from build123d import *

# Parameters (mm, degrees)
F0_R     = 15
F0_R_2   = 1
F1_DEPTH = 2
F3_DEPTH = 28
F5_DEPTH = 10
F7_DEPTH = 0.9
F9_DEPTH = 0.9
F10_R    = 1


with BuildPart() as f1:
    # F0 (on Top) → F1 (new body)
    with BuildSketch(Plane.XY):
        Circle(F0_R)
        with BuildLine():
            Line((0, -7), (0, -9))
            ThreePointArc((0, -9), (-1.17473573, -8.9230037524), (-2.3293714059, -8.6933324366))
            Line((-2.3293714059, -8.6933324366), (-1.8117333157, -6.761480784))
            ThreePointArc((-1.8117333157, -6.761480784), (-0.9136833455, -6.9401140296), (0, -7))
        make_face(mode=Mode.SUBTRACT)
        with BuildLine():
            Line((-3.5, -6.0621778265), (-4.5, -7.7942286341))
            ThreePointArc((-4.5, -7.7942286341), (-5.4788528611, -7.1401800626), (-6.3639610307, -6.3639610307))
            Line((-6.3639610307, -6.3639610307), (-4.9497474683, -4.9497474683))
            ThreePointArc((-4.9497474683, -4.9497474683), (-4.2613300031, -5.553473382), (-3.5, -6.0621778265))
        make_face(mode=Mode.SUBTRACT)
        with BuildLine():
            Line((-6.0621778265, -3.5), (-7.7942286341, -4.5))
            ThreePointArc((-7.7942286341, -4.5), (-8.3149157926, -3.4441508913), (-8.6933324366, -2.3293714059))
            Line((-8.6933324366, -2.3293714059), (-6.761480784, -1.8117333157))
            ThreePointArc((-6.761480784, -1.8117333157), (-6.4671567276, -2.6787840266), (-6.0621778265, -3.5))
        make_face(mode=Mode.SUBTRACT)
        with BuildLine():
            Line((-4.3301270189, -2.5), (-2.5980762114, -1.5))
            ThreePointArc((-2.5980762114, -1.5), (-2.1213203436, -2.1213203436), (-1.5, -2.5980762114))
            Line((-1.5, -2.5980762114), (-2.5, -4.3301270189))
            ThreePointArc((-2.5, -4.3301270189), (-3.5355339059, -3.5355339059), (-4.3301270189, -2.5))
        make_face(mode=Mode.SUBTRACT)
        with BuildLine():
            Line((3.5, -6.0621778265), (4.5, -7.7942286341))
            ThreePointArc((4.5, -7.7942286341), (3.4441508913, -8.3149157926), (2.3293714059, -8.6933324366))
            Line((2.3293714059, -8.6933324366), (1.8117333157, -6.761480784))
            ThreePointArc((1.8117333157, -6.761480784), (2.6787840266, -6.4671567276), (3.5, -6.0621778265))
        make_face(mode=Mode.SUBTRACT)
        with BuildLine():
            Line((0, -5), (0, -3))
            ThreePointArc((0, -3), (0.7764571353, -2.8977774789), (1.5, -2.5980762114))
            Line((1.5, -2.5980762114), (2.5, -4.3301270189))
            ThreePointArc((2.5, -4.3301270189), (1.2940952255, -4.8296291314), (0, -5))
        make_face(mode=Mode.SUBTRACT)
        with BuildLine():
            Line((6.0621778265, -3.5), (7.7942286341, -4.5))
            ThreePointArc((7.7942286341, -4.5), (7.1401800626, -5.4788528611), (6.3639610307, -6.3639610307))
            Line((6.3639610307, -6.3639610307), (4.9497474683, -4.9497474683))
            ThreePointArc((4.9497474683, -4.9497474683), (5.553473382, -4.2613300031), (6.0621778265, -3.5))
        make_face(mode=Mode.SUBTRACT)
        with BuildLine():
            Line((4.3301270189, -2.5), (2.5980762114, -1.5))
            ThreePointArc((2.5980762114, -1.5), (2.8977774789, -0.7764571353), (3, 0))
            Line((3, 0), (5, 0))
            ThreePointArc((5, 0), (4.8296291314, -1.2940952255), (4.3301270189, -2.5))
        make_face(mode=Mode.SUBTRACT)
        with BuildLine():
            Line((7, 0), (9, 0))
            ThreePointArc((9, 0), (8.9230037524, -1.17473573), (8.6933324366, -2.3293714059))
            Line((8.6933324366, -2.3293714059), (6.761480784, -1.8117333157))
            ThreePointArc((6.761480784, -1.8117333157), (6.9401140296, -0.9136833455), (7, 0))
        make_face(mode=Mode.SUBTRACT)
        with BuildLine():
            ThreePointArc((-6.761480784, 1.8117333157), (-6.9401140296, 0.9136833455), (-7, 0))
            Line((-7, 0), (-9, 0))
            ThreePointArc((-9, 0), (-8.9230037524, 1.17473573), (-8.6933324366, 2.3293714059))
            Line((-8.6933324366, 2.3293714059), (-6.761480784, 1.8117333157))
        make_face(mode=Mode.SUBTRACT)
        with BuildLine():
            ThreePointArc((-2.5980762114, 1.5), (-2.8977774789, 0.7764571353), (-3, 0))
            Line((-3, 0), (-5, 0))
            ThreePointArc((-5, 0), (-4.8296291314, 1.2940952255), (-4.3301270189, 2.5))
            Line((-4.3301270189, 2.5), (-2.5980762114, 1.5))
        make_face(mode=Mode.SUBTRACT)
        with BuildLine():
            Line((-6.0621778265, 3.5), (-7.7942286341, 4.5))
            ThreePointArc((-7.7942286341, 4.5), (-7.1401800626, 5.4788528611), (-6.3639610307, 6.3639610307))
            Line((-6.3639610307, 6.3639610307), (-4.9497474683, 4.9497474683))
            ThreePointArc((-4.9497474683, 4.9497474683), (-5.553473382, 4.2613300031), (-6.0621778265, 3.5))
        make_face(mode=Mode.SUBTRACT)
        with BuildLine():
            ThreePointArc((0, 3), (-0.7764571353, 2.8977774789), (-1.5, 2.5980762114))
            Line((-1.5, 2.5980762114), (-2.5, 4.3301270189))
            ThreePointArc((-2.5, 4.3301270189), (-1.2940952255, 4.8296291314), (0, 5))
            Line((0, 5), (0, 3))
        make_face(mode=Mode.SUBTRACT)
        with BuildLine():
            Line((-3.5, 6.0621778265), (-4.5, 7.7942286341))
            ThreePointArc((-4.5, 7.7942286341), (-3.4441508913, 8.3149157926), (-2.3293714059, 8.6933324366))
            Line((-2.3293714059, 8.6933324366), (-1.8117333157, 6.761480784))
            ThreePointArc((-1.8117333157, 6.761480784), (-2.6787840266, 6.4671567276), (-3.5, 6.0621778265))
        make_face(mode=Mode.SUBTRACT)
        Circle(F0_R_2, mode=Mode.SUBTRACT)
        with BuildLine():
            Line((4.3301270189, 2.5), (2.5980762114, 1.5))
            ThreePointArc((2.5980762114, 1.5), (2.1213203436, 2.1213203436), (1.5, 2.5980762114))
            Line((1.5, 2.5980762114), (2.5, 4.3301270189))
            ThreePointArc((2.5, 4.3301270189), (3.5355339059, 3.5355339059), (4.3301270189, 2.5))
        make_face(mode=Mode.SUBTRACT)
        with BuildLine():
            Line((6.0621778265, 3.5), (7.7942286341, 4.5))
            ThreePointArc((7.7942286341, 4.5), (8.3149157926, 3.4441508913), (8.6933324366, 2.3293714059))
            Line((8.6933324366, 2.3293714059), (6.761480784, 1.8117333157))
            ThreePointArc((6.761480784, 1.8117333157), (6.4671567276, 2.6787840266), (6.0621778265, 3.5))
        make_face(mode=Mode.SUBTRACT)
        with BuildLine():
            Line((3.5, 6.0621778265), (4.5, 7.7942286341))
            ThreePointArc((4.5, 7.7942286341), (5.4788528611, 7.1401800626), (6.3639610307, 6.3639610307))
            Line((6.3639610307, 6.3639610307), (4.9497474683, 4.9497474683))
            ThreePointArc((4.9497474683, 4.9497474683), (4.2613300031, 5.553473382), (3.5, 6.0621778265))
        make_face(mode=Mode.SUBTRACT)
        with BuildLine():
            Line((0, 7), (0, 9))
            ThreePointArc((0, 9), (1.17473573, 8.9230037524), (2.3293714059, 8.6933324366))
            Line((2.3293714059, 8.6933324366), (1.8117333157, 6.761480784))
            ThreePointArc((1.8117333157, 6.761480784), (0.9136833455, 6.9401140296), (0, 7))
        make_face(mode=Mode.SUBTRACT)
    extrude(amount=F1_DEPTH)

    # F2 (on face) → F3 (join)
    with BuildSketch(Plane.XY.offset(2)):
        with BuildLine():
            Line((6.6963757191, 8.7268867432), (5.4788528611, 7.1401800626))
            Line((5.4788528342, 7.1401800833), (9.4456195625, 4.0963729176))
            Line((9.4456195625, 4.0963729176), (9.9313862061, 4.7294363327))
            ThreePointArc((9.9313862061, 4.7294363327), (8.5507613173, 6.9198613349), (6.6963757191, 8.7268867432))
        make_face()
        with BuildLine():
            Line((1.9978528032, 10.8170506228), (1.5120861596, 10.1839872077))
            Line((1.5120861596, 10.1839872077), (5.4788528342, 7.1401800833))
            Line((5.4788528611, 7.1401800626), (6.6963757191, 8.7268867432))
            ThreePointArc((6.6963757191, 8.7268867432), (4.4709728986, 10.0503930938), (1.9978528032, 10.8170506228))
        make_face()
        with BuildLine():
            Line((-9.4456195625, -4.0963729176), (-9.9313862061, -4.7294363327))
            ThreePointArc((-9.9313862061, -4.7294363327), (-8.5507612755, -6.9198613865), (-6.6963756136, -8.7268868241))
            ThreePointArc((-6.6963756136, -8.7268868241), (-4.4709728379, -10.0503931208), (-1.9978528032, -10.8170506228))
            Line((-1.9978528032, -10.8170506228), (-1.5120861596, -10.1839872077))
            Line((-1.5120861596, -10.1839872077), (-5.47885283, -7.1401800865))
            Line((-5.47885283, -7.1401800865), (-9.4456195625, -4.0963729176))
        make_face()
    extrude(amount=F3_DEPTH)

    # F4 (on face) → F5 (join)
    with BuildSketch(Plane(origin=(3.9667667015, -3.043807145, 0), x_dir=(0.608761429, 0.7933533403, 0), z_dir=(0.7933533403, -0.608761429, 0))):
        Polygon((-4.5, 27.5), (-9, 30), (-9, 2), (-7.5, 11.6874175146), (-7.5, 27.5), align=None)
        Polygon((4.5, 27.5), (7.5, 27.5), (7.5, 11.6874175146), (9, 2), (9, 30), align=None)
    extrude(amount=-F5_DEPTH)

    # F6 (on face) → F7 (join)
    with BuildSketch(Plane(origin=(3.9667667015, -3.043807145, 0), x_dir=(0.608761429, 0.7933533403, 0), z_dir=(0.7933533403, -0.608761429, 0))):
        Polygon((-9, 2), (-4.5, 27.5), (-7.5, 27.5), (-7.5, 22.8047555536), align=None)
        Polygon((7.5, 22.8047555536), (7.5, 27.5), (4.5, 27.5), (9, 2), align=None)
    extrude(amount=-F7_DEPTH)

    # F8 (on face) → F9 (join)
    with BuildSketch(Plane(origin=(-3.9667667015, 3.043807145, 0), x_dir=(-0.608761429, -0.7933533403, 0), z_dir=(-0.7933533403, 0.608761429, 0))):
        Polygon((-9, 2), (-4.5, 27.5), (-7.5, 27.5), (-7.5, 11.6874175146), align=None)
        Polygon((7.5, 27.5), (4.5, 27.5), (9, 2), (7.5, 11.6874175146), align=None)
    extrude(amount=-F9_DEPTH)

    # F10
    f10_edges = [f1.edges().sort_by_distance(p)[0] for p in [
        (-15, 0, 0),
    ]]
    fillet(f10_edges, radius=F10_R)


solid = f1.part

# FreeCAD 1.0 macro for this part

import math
import FreeCAD as App
import Part
import Sketcher
from FreeCAD import Vector
Q = App.Units.Quantity


def edges_at(feature, points):
    """Names of the edges that pass closest to the given points."""
    edges = feature.Shape.Edges
    near = lambda p: min(range(len(edges)), key=lambda i: edges[i].distToShape(Part.Vertex(*p))[0])
    return sorted({f"Edge{near(p) + 1}" for p in points})

doc = App.newDocument("Part")
body = doc.addObject("PartDesign::Body", "Body")

sketch1 = body.newObject("Sketcher::SketchObject", "Sketch")
sketch1.AttachmentSupport = (doc.getObject("XY_Plane"), [""])
sketch1.MapMode = "FlatFace"
sketch1.addGeometry(Part.Circle(Vector(0, 0, 0), Vector(0, 0, 1), 15), False)
sketch1.addGeometry(Part.ArcOfCircle(Part.Circle(Vector(0, 0, 0), Vector(0, 0, 1), 7), math.radians(-135), math.radians(-120)), False)
sketch1.addGeometry(Part.LineSegment(Vector(-3.5, -6.1, 0), Vector(-4.5, -7.8, 0)), False)
sketch1.addGeometry(Part.ArcOfCircle(Part.Circle(Vector(0, 0, 0), Vector(0, 0, 1), 9), math.radians(-135), math.radians(-120)), False)
sketch1.addGeometry(Part.LineSegment(Vector(-6.4, -6.4, 0), Vector(-4.9, -4.9, 0)), False)
sketch1.addGeometry(Part.ArcOfCircle(Part.Circle(Vector(0, 0, 0), Vector(0, 0, 1), 7), math.radians(-105), math.radians(-90)), False)
sketch1.addGeometry(Part.LineSegment(Vector(0, -7, 0), Vector(0, -9, 0)), False)
sketch1.addGeometry(Part.ArcOfCircle(Part.Circle(Vector(0, 0, 0), Vector(0, 0, 1), 9), math.radians(-105), math.radians(-90)), False)
sketch1.addGeometry(Part.LineSegment(Vector(-2.3, -8.7, 0), Vector(-1.8, -6.8, 0)), False)
sketch1.addGeometry(Part.ArcOfCircle(Part.Circle(Vector(0, 0, 0), Vector(0, 0, 1), 7), math.radians(-165), math.radians(-150)), False)
sketch1.addGeometry(Part.LineSegment(Vector(-6.1, -3.5, 0), Vector(-7.8, -4.5, 0)), False)
sketch1.addGeometry(Part.ArcOfCircle(Part.Circle(Vector(0, 0, 0), Vector(0, 0, 1), 9), math.radians(-165), math.radians(-150)), False)
sketch1.addGeometry(Part.LineSegment(Vector(-8.7, -2.3, 0), Vector(-6.8, -1.8, 0)), False)
sketch1.addGeometry(Part.ArcOfCircle(Part.Circle(Vector(0, 0, 0), Vector(0, 0, 1), 5), math.radians(-150), math.radians(-120)), False)
sketch1.addGeometry(Part.LineSegment(Vector(-4.3, -2.5, 0), Vector(-2.6, -1.5, 0)), False)
sketch1.addGeometry(Part.ArcOfCircle(Part.Circle(Vector(0, 0, 0), Vector(0, 0, 1), 3), math.radians(-150), math.radians(-120)), False)
sketch1.addGeometry(Part.LineSegment(Vector(-1.5, -2.6, 0), Vector(-2.5, -4.3, 0)), False)
sketch1.addGeometry(Part.ArcOfCircle(Part.Circle(Vector(0, 0, 0), Vector(0, 0, 1), 7), math.radians(-75), math.radians(-60)), False)
sketch1.addGeometry(Part.LineSegment(Vector(3.5, -6.1, 0), Vector(4.5, -7.8, 0)), False)
sketch1.addGeometry(Part.ArcOfCircle(Part.Circle(Vector(0, 0, 0), Vector(0, 0, 1), 9), math.radians(-75), math.radians(-60)), False)
sketch1.addGeometry(Part.LineSegment(Vector(2.3, -8.7, 0), Vector(1.8, -6.8, 0)), False)
sketch1.addGeometry(Part.ArcOfCircle(Part.Circle(Vector(0, 0, 0), Vector(0, 0, 1), 7), math.radians(-45), math.radians(-30)), False)
sketch1.addGeometry(Part.LineSegment(Vector(6.1, -3.5, 0), Vector(7.8, -4.5, 0)), False)
sketch1.addGeometry(Part.ArcOfCircle(Part.Circle(Vector(0, 0, 0), Vector(0, 0, 1), 9), math.radians(-45), math.radians(-30)), False)
sketch1.addGeometry(Part.LineSegment(Vector(6.4, -6.4, 0), Vector(4.9, -4.9, 0)), False)
sketch1.addGeometry(Part.ArcOfCircle(Part.Circle(Vector(0, 0, 0), Vector(0, 0, 1), 5), math.radians(-90), math.radians(-60)), False)
sketch1.addGeometry(Part.LineSegment(Vector(0, -5, 0), Vector(0, -3, 0)), False)
sketch1.addGeometry(Part.ArcOfCircle(Part.Circle(Vector(0, 0, 0), Vector(0, 0, 1), 3), math.radians(-90), math.radians(-60)), False)
sketch1.addGeometry(Part.LineSegment(Vector(1.5, -2.6, 0), Vector(2.5, -4.3, 0)), False)
sketch1.addGeometry(Part.ArcOfCircle(Part.Circle(Vector(0, 0, 0), Vector(0, 0, 1), 5), math.radians(-30), math.radians(0)), False)
sketch1.addGeometry(Part.LineSegment(Vector(4.3, -2.5, 0), Vector(2.6, -1.5, 0)), False)
sketch1.addGeometry(Part.ArcOfCircle(Part.Circle(Vector(0, 0, 0), Vector(0, 0, 1), 3), math.radians(-30), math.radians(0)), False)
sketch1.addGeometry(Part.LineSegment(Vector(3, 0, 0), Vector(5, 0, 0)), False)
sketch1.addGeometry(Part.ArcOfCircle(Part.Circle(Vector(0, 0, 0), Vector(0, 0, 1), 7), math.radians(-15), math.radians(0)), False)
sketch1.addGeometry(Part.LineSegment(Vector(7, 0, 0), Vector(9, 0, 0)), False)
sketch1.addGeometry(Part.ArcOfCircle(Part.Circle(Vector(0, 0, 0), Vector(0, 0, 1), 9), math.radians(-15), math.radians(0)), False)
sketch1.addGeometry(Part.LineSegment(Vector(8.7, -2.3, 0), Vector(6.8, -1.8, 0)), False)
sketch1.addGeometry(Part.LineSegment(Vector(-8.7, 2.3, 0), Vector(-6.8, 1.8, 0)), False)
sketch1.addGeometry(Part.ArcOfCircle(Part.Circle(Vector(0, 0, 0), Vector(0, 0, 1), 7), math.radians(165), math.radians(180)), False)
sketch1.addGeometry(Part.LineSegment(Vector(-7, 0, 0), Vector(-9, 0, 0)), False)
sketch1.addGeometry(Part.ArcOfCircle(Part.Circle(Vector(0, 0, 0), Vector(0, 0, 1), 9), math.radians(165), math.radians(180)), False)
sketch1.addGeometry(Part.LineSegment(Vector(-4.3, 2.5, 0), Vector(-2.6, 1.5, 0)), False)
sketch1.addGeometry(Part.ArcOfCircle(Part.Circle(Vector(0, 0, 0), Vector(0, 0, 1), 3), math.radians(150), math.radians(180)), False)
sketch1.addGeometry(Part.LineSegment(Vector(-3, 0, 0), Vector(-5, 0, 0)), False)
sketch1.addGeometry(Part.ArcOfCircle(Part.Circle(Vector(0, 0, 0), Vector(0, 0, 1), 5), math.radians(150), math.radians(180)), False)
sketch1.addGeometry(Part.LineSegment(Vector(0, 5, 0), Vector(0, 3, 0)), False)
sketch1.addGeometry(Part.ArcOfCircle(Part.Circle(Vector(0, 0, 0), Vector(0, 0, 1), 3), math.radians(90), math.radians(120)), False)
sketch1.addGeometry(Part.LineSegment(Vector(-1.5, 2.6, 0), Vector(-2.5, 4.3, 0)), False)
sketch1.addGeometry(Part.ArcOfCircle(Part.Circle(Vector(0, 0, 0), Vector(0, 0, 1), 5), math.radians(90), math.radians(120)), False)
sketch1.addGeometry(Part.ArcOfCircle(Part.Circle(Vector(0, 0, 0), Vector(0, 0, 1), 7), math.radians(135), math.radians(150)), False)
sketch1.addGeometry(Part.LineSegment(Vector(-6.1, 3.5, 0), Vector(-7.8, 4.5, 0)), False)
sketch1.addGeometry(Part.ArcOfCircle(Part.Circle(Vector(0, 0, 0), Vector(0, 0, 1), 9), math.radians(135), math.radians(150)), False)
sketch1.addGeometry(Part.LineSegment(Vector(-6.4, 6.4, 0), Vector(-4.9, 4.9, 0)), False)
sketch1.addGeometry(Part.ArcOfCircle(Part.Circle(Vector(0, 0, 0), Vector(0, 0, 1), 7), math.radians(105), math.radians(120)), False)
sketch1.addGeometry(Part.LineSegment(Vector(-3.5, 6.1, 0), Vector(-4.5, 7.8, 0)), False)
sketch1.addGeometry(Part.ArcOfCircle(Part.Circle(Vector(0, 0, 0), Vector(0, 0, 1), 9), math.radians(105), math.radians(120)), False)
sketch1.addGeometry(Part.LineSegment(Vector(-2.3, 8.7, 0), Vector(-1.8, 6.8, 0)), False)
sketch1.addGeometry(Part.Circle(Vector(0, 0, 0), Vector(0, 0, 1), 1), False)
sketch1.addGeometry(Part.ArcOfCircle(Part.Circle(Vector(0, 0, 0), Vector(0, 0, 1), 5), math.radians(30), math.radians(60)), False)
sketch1.addGeometry(Part.LineSegment(Vector(4.3, 2.5, 0), Vector(2.6, 1.5, 0)), False)
sketch1.addGeometry(Part.ArcOfCircle(Part.Circle(Vector(0, 0, 0), Vector(0, 0, 1), 3), math.radians(30), math.radians(60)), False)
sketch1.addGeometry(Part.LineSegment(Vector(1.5, 2.6, 0), Vector(2.5, 4.3, 0)), False)
sketch1.addGeometry(Part.ArcOfCircle(Part.Circle(Vector(0, 0, 0), Vector(0, 0, 1), 7), math.radians(15), math.radians(30)), False)
sketch1.addGeometry(Part.LineSegment(Vector(6.1, 3.5, 0), Vector(7.8, 4.5, 0)), False)
sketch1.addGeometry(Part.ArcOfCircle(Part.Circle(Vector(0, 0, 0), Vector(0, 0, 1), 9), math.radians(15), math.radians(30)), False)
sketch1.addGeometry(Part.LineSegment(Vector(8.7, 2.3, 0), Vector(6.8, 1.8, 0)), False)
sketch1.addGeometry(Part.ArcOfCircle(Part.Circle(Vector(0, 0, 0), Vector(0, 0, 1), 7), math.radians(75), math.radians(90)), False)
sketch1.addGeometry(Part.LineSegment(Vector(0, 7, 0), Vector(0, 9, 0)), False)
sketch1.addGeometry(Part.ArcOfCircle(Part.Circle(Vector(0, 0, 0), Vector(0, 0, 1), 9), math.radians(75), math.radians(90)), False)
sketch1.addGeometry(Part.LineSegment(Vector(2.3, 8.7, 0), Vector(1.8, 6.8, 0)), False)
sketch1.addGeometry(Part.ArcOfCircle(Part.Circle(Vector(0, 0, 0), Vector(0, 0, 1), 7), math.radians(45), math.radians(60)), False)
sketch1.addGeometry(Part.LineSegment(Vector(3.5, 6.1, 0), Vector(4.5, 7.8, 0)), False)
sketch1.addGeometry(Part.ArcOfCircle(Part.Circle(Vector(0, 0, 0), Vector(0, 0, 1), 9), math.radians(45), math.radians(60)), False)
sketch1.addGeometry(Part.LineSegment(Vector(6.4, 6.4, 0), Vector(4.9, 4.9, 0)), False)
sketch1.addConstraint(Sketcher.Constraint("Coincident", 1, 2, 2, 1))
sketch1.addConstraint(Sketcher.Constraint("Coincident", 2, 2, 3, 2))
sketch1.addConstraint(Sketcher.Constraint("Coincident", 3, 1, 4, 1))
sketch1.addConstraint(Sketcher.Constraint("Coincident", 4, 2, 1, 1))
sketch1.addConstraint(Sketcher.Constraint("Coincident", 5, 2, 6, 1))
sketch1.addConstraint(Sketcher.Constraint("Coincident", 6, 2, 7, 2))
sketch1.addConstraint(Sketcher.Constraint("Coincident", 7, 1, 8, 1))
sketch1.addConstraint(Sketcher.Constraint("Coincident", 8, 2, 5, 1))
sketch1.addConstraint(Sketcher.Constraint("Coincident", 9, 2, 10, 1))
sketch1.addConstraint(Sketcher.Constraint("Coincident", 10, 2, 11, 2))
sketch1.addConstraint(Sketcher.Constraint("Coincident", 11, 1, 12, 1))
sketch1.addConstraint(Sketcher.Constraint("Coincident", 12, 2, 9, 1))
sketch1.addConstraint(Sketcher.Constraint("Coincident", 13, 1, 14, 1))
sketch1.addConstraint(Sketcher.Constraint("Coincident", 14, 2, 15, 1))
sketch1.addConstraint(Sketcher.Constraint("Coincident", 15, 2, 16, 1))
sketch1.addConstraint(Sketcher.Constraint("Coincident", 16, 2, 13, 2))
sketch1.addConstraint(Sketcher.Constraint("Coincident", 17, 2, 18, 1))
sketch1.addConstraint(Sketcher.Constraint("Coincident", 18, 2, 19, 2))
sketch1.addConstraint(Sketcher.Constraint("Coincident", 19, 1, 20, 1))
sketch1.addConstraint(Sketcher.Constraint("Coincident", 20, 2, 17, 1))
sketch1.addConstraint(Sketcher.Constraint("Coincident", 21, 2, 22, 1))
sketch1.addConstraint(Sketcher.Constraint("Coincident", 22, 2, 23, 2))
sketch1.addConstraint(Sketcher.Constraint("Coincident", 23, 1, 24, 1))
sketch1.addConstraint(Sketcher.Constraint("Coincident", 24, 2, 21, 1))
sketch1.addConstraint(Sketcher.Constraint("Coincident", 25, 1, 26, 1))
sketch1.addConstraint(Sketcher.Constraint("Coincident", 26, 2, 27, 1))
sketch1.addConstraint(Sketcher.Constraint("Coincident", 27, 2, 28, 1))
sketch1.addConstraint(Sketcher.Constraint("Coincident", 28, 2, 25, 2))
sketch1.addConstraint(Sketcher.Constraint("Coincident", 29, 1, 30, 1))
sketch1.addConstraint(Sketcher.Constraint("Coincident", 30, 2, 31, 1))
sketch1.addConstraint(Sketcher.Constraint("Coincident", 31, 2, 32, 1))
sketch1.addConstraint(Sketcher.Constraint("Coincident", 32, 2, 29, 2))
sketch1.addConstraint(Sketcher.Constraint("Coincident", 33, 2, 34, 1))
sketch1.addConstraint(Sketcher.Constraint("Coincident", 34, 2, 35, 2))
sketch1.addConstraint(Sketcher.Constraint("Coincident", 35, 1, 36, 1))
sketch1.addConstraint(Sketcher.Constraint("Coincident", 36, 2, 33, 1))
sketch1.addConstraint(Sketcher.Constraint("Coincident", 37, 2, 38, 1))
sketch1.addConstraint(Sketcher.Constraint("Coincident", 38, 2, 39, 1))
sketch1.addConstraint(Sketcher.Constraint("Coincident", 39, 2, 40, 2))
sketch1.addConstraint(Sketcher.Constraint("Coincident", 40, 1, 37, 1))
sketch1.addConstraint(Sketcher.Constraint("Coincident", 41, 2, 42, 1))
sketch1.addConstraint(Sketcher.Constraint("Coincident", 42, 2, 43, 1))
sketch1.addConstraint(Sketcher.Constraint("Coincident", 43, 2, 44, 2))
sketch1.addConstraint(Sketcher.Constraint("Coincident", 44, 1, 41, 1))
sketch1.addConstraint(Sketcher.Constraint("Coincident", 45, 2, 46, 1))
sketch1.addConstraint(Sketcher.Constraint("Coincident", 46, 2, 47, 1))
sketch1.addConstraint(Sketcher.Constraint("Coincident", 47, 2, 48, 2))
sketch1.addConstraint(Sketcher.Constraint("Coincident", 48, 1, 45, 1))
sketch1.addConstraint(Sketcher.Constraint("Coincident", 49, 2, 50, 1))
sketch1.addConstraint(Sketcher.Constraint("Coincident", 50, 2, 51, 2))
sketch1.addConstraint(Sketcher.Constraint("Coincident", 51, 1, 52, 1))
sketch1.addConstraint(Sketcher.Constraint("Coincident", 52, 2, 49, 1))
sketch1.addConstraint(Sketcher.Constraint("Coincident", 53, 2, 54, 1))
sketch1.addConstraint(Sketcher.Constraint("Coincident", 54, 2, 55, 2))
sketch1.addConstraint(Sketcher.Constraint("Coincident", 55, 1, 56, 1))
sketch1.addConstraint(Sketcher.Constraint("Coincident", 56, 2, 53, 1))
sketch1.addConstraint(Sketcher.Constraint("Coincident", 58, 1, 59, 1))
sketch1.addConstraint(Sketcher.Constraint("Coincident", 59, 2, 60, 1))
sketch1.addConstraint(Sketcher.Constraint("Coincident", 60, 2, 61, 1))
sketch1.addConstraint(Sketcher.Constraint("Coincident", 61, 2, 58, 2))
sketch1.addConstraint(Sketcher.Constraint("Coincident", 62, 2, 63, 1))
sketch1.addConstraint(Sketcher.Constraint("Coincident", 63, 2, 64, 2))
sketch1.addConstraint(Sketcher.Constraint("Coincident", 64, 1, 65, 1))
sketch1.addConstraint(Sketcher.Constraint("Coincident", 65, 2, 62, 1))
sketch1.addConstraint(Sketcher.Constraint("Coincident", 66, 2, 67, 1))
sketch1.addConstraint(Sketcher.Constraint("Coincident", 67, 2, 68, 2))
sketch1.addConstraint(Sketcher.Constraint("Coincident", 68, 1, 69, 1))
sketch1.addConstraint(Sketcher.Constraint("Coincident", 69, 2, 66, 1))
sketch1.addConstraint(Sketcher.Constraint("Coincident", 70, 2, 71, 1))
sketch1.addConstraint(Sketcher.Constraint("Coincident", 71, 2, 72, 2))
sketch1.addConstraint(Sketcher.Constraint("Coincident", 72, 1, 73, 1))
sketch1.addConstraint(Sketcher.Constraint("Coincident", 73, 2, 70, 1))
sketch1.addConstraint(Sketcher.Constraint("Vertical", 6))
sketch1.addConstraint(Sketcher.Constraint("Vertical", 26))
sketch1.addConstraint(Sketcher.Constraint("Horizontal", 32))
sketch1.addConstraint(Sketcher.Constraint("Horizontal", 34))
sketch1.addConstraint(Sketcher.Constraint("Horizontal", 39))
sketch1.addConstraint(Sketcher.Constraint("Horizontal", 43))
sketch1.addConstraint(Sketcher.Constraint("Vertical", 45))
sketch1.addConstraint(Sketcher.Constraint("Vertical", 67))
sketch1.addConstraint(Sketcher.Constraint("Coincident", 0, 3, -1, 1))
sketch1.addConstraint(Sketcher.Constraint("Coincident", 1, 3, -1, 1))
sketch1.addConstraint(Sketcher.Constraint("Coincident", 3, 3, -1, 1))
sketch1.addConstraint(Sketcher.Constraint("Coincident", 5, 3, -1, 1))
sketch1.addConstraint(Sketcher.Constraint("Coincident", 7, 3, -1, 1))
sketch1.addConstraint(Sketcher.Constraint("Coincident", 9, 3, -1, 1))
sketch1.addConstraint(Sketcher.Constraint("Coincident", 11, 3, -1, 1))
sketch1.addConstraint(Sketcher.Constraint("Coincident", 13, 3, -1, 1))
sketch1.addConstraint(Sketcher.Constraint("Coincident", 15, 3, -1, 1))
sketch1.addConstraint(Sketcher.Constraint("Coincident", 17, 3, -1, 1))
sketch1.addConstraint(Sketcher.Constraint("Coincident", 19, 3, -1, 1))
sketch1.addConstraint(Sketcher.Constraint("Coincident", 21, 3, -1, 1))
sketch1.addConstraint(Sketcher.Constraint("Coincident", 23, 3, -1, 1))
sketch1.addConstraint(Sketcher.Constraint("Coincident", 25, 3, -1, 1))
sketch1.addConstraint(Sketcher.Constraint("Coincident", 27, 3, -1, 1))
sketch1.addConstraint(Sketcher.Constraint("Coincident", 29, 3, -1, 1))
sketch1.addConstraint(Sketcher.Constraint("Coincident", 31, 3, -1, 1))
sketch1.addConstraint(Sketcher.Constraint("Coincident", 33, 3, -1, 1))
sketch1.addConstraint(Sketcher.Constraint("Coincident", 35, 3, -1, 1))
sketch1.addConstraint(Sketcher.Constraint("Coincident", 38, 3, -1, 1))
sketch1.addConstraint(Sketcher.Constraint("Coincident", 40, 3, -1, 1))
sketch1.addConstraint(Sketcher.Constraint("Coincident", 42, 3, -1, 1))
sketch1.addConstraint(Sketcher.Constraint("Coincident", 44, 3, -1, 1))
sketch1.addConstraint(Sketcher.Constraint("Coincident", 46, 3, -1, 1))
sketch1.addConstraint(Sketcher.Constraint("Coincident", 48, 3, -1, 1))
sketch1.addConstraint(Sketcher.Constraint("Coincident", 49, 3, -1, 1))
sketch1.addConstraint(Sketcher.Constraint("Coincident", 51, 3, -1, 1))
sketch1.addConstraint(Sketcher.Constraint("Coincident", 53, 3, -1, 1))
sketch1.addConstraint(Sketcher.Constraint("Coincident", 55, 3, -1, 1))
sketch1.addConstraint(Sketcher.Constraint("Coincident", 57, 3, -1, 1))
sketch1.addConstraint(Sketcher.Constraint("Coincident", 58, 3, -1, 1))
sketch1.addConstraint(Sketcher.Constraint("Coincident", 60, 3, -1, 1))
sketch1.addConstraint(Sketcher.Constraint("Coincident", 62, 3, -1, 1))
sketch1.addConstraint(Sketcher.Constraint("Coincident", 64, 3, -1, 1))
sketch1.addConstraint(Sketcher.Constraint("Coincident", 66, 3, -1, 1))
sketch1.addConstraint(Sketcher.Constraint("Coincident", 68, 3, -1, 1))
sketch1.addConstraint(Sketcher.Constraint("Coincident", 70, 3, -1, 1))
sketch1.addConstraint(Sketcher.Constraint("Coincident", 72, 3, -1, 1))
sketch1.addConstraint(Sketcher.Constraint("Equal", 1, 5))
sketch1.addConstraint(Sketcher.Constraint("Equal", 3, 7))
sketch1.addConstraint(Sketcher.Constraint("Equal", 5, 9))
sketch1.addConstraint(Sketcher.Constraint("Equal", 7, 11))
sketch1.addConstraint(Sketcher.Constraint("Equal", 9, 17))
sketch1.addConstraint(Sketcher.Constraint("Equal", 11, 19))
sketch1.addConstraint(Sketcher.Constraint("Equal", 17, 21))
sketch1.addConstraint(Sketcher.Constraint("Equal", 19, 23))
sketch1.addConstraint(Sketcher.Constraint("Equal", 13, 25))
sketch1.addConstraint(Sketcher.Constraint("Equal", 15, 27))
sketch1.addConstraint(Sketcher.Constraint("Equal", 25, 29))
sketch1.addConstraint(Sketcher.Constraint("Equal", 27, 31))
sketch1.addConstraint(Sketcher.Constraint("Equal", 21, 33))
sketch1.addConstraint(Sketcher.Constraint("Equal", 23, 35))
sketch1.addConstraint(Sketcher.Constraint("Equal", 33, 38))
sketch1.addConstraint(Sketcher.Constraint("Equal", 35, 40))
sketch1.addConstraint(Sketcher.Constraint("Equal", 31, 42))
sketch1.addConstraint(Sketcher.Constraint("Equal", 29, 44))
sketch1.addConstraint(Sketcher.Constraint("Equal", 42, 46))
sketch1.addConstraint(Sketcher.Constraint("Equal", 44, 48))
sketch1.addConstraint(Sketcher.Constraint("Equal", 38, 49))
sketch1.addConstraint(Sketcher.Constraint("Equal", 40, 51))
sketch1.addConstraint(Sketcher.Constraint("Equal", 49, 53))
sketch1.addConstraint(Sketcher.Constraint("Equal", 51, 55))
sketch1.addConstraint(Sketcher.Constraint("Equal", 48, 58))
sketch1.addConstraint(Sketcher.Constraint("Equal", 46, 60))
sketch1.addConstraint(Sketcher.Constraint("Equal", 53, 62))
sketch1.addConstraint(Sketcher.Constraint("Equal", 55, 64))
sketch1.addConstraint(Sketcher.Constraint("Equal", 62, 66))
sketch1.addConstraint(Sketcher.Constraint("Equal", 64, 68))
sketch1.addConstraint(Sketcher.Constraint("Equal", 66, 70))
sketch1.addConstraint(Sketcher.Constraint("Equal", 68, 72))
sketch1.addConstraint(Sketcher.Constraint("PointOnObject", 5, 2, -2))
sketch1.addConstraint(Sketcher.Constraint("PointOnObject", 25, 1, -2))
sketch1.addConstraint(Sketcher.Constraint("PointOnObject", 31, 2, -1))
sketch1.addConstraint(Sketcher.Constraint("PointOnObject", 33, 2, -1))
sketch1.addConstraint(Sketcher.Constraint("PointOnObject", 38, 2, -1))
sketch1.addConstraint(Sketcher.Constraint("PointOnObject", 42, 2, -1))
sketch1.addConstraint(Sketcher.Constraint("PointOnObject", 45, 2, -2))
sketch1.addConstraint(Sketcher.Constraint("PointOnObject", 66, 2, -2))
sketch1.addConstraint(Sketcher.Constraint("Parallel", 10, 14))
sketch1.addConstraint(Sketcher.Constraint("Parallel", 2, 16))
sketch1.addConstraint(Sketcher.Constraint("Perpendicular", 14, 18))
sketch1.addConstraint(Sketcher.Constraint("Perpendicular", 12, 20))
sketch1.addConstraint(Sketcher.Constraint("Perpendicular", 16, 22))
sketch1.addConstraint(Sketcher.Constraint("Perpendicular", 4, 24))
sketch1.addConstraint(Sketcher.Constraint("Parallel", 18, 28))
sketch1.addConstraint(Sketcher.Constraint("Parallel", 22, 30))
sketch1.addConstraint(Sketcher.Constraint("Perpendicular", 8, 36))
sketch1.addConstraint(Sketcher.Constraint("Parallel", 36, 37))
sketch1.addConstraint(Sketcher.Constraint("Parallel", 30, 41))
sketch1.addConstraint(Sketcher.Constraint("Parallel", 28, 47))
sketch1.addConstraint(Sketcher.Constraint("Parallel", 41, 50))
sketch1.addConstraint(Sketcher.Constraint("Parallel", 24, 52))
sketch1.addConstraint(Sketcher.Constraint("Parallel", 47, 54))
sketch1.addConstraint(Sketcher.Constraint("Parallel", 20, 56))
sketch1.addConstraint(Sketcher.Constraint("Perpendicular", 54, 59))
sketch1.addConstraint(Sketcher.Constraint("Perpendicular", 50, 61))
sketch1.addConstraint(Sketcher.Constraint("Parallel", 59, 63))
sketch1.addConstraint(Sketcher.Constraint("Perpendicular", 56, 65))
sketch1.addConstraint(Sketcher.Constraint("Perpendicular", 37, 69))
sketch1.addConstraint(Sketcher.Constraint("Parallel", 61, 71))
sketch1.addConstraint(Sketcher.Constraint("Perpendicular", 52, 73))
sketch1.addConstraint(Sketcher.Constraint("Horizontal", 1, 2, 17, 2))
sketch1.addConstraint(Sketcher.Constraint("Horizontal", 2, 2, 18, 2))
sketch1.addConstraint(Sketcher.Constraint("Horizontal", 7, 1, 19, 1))
sketch1.addConstraint(Sketcher.Constraint("Horizontal", 8, 2, 20, 2))
sketch1.addConstraint(Sketcher.Constraint("Horizontal", 9, 2, 21, 2))
sketch1.addConstraint(Sketcher.Constraint("Horizontal", 3, 1, 23, 1))
sketch1.addConstraint(Sketcher.Constraint("Horizontal", 4, 2, 24, 2))
sketch1.addConstraint(Sketcher.Constraint("Horizontal", 15, 2, 27, 2))
sketch1.addConstraint(Sketcher.Constraint("Horizontal", 13, 1, 29, 1))
sketch1.addConstraint(Sketcher.Constraint("Horizontal", 11, 1, 35, 1))
sketch1.addConstraint(Sketcher.Constraint("Horizontal", 44, 1, 58, 1))
sketch1.addConstraint(Sketcher.Constraint("Horizontal", 46, 2, 60, 2))
sketch1.addConstraint(Sketcher.Constraint("Horizontal", 49, 2, 62, 2))
sketch1.addConstraint(Sketcher.Constraint("Horizontal", 40, 1, 64, 1))
sketch1.addConstraint(Sketcher.Constraint("Horizontal", 55, 1, 68, 1))
sketch1.addConstraint(Sketcher.Constraint("Horizontal", 53, 2, 70, 2))
sketch1.addConstraint(Sketcher.Constraint("Horizontal", 51, 1, 72, 1))
sketch1.addConstraint(Sketcher.Constraint("Vertical", 12, 2, 37, 2))
sketch1.addConstraint(Sketcher.Constraint("Vertical", 14, 2, 41, 2))
sketch1.addConstraint(Sketcher.Constraint("Vertical", 15, 2, 46, 2))
sketch1.addConstraint(Sketcher.Constraint("Vertical", 9, 2, 49, 2))
sketch1.addConstraint(Sketcher.Constraint("Vertical", 3, 1, 51, 1))
sketch1.addConstraint(Sketcher.Constraint("Vertical", 1, 2, 53, 2))
sketch1.addConstraint(Sketcher.Constraint("Vertical", 7, 1, 55, 1))
sketch1.addConstraint(Sketcher.Constraint("Equal", 32, 34))
sketch1.addConstraint(Sketcher.Constraint("Diameter", 0, 30.0))
sketch1.addConstraint(Sketcher.Constraint("Diameter", 57, 2.0))
sketch1.addConstraint(Sketcher.Constraint("Radius", 1, 7.0))
sketch1.addConstraint(Sketcher.Constraint("Radius", 3, 9.0))
sketch1.addConstraint(Sketcher.Constraint("Radius", 13, 5.0))
sketch1.addConstraint(Sketcher.Constraint("Angle", 2, Q("-120 deg")))
sketch1.addConstraint(Sketcher.Constraint("Angle", 8, Q("75 deg")))
sketch1.addConstraint(Sketcher.Constraint("DistanceX", 1, 2, -1, 1, 3.5))
sketch1.addConstraint(Sketcher.Constraint("DistanceY", 9, 2, -1, 1, 3.5))
sketch1.addConstraint(Sketcher.Constraint("DistanceY", 13, 1, -1, 1, 2.5))
sketch1.addConstraint(Sketcher.Constraint("DistanceX", 15, 2, -1, 1, 1.5))
sketch1.addConstraint(Sketcher.Constraint("DistanceX", 3, 1, -1, 1, 6.363961))
sketch1.addConstraint(Sketcher.Constraint("DistanceX", 7, 1, -1, 1, 2.329371))
sketch1.addConstraint(Sketcher.Constraint("DistanceY", 11, 1, -1, 1, 2.329371))
pad1 = body.newObject("PartDesign::Pad", "Pad")
pad1.Profile = sketch1
pad1.Length = 2

sketch2 = body.newObject("Sketcher::SketchObject", "Sketch001")
sketch2.AttachmentSupport = (doc.getObject("XY_Plane"), [""])
sketch2.MapMode = "FlatFace"
sketch2.AttachmentOffset = App.Placement(Vector(0, 0, 2), App.Rotation())
sketch2.addGeometry(Part.LineSegment(Vector(5.5, 7.1, 0), Vector(9.4, 4.1, 0)), False)
sketch2.addGeometry(Part.LineSegment(Vector(9.4, 4.1, 0), Vector(9.9, 4.7, 0)), False)
sketch2.addGeometry(Part.ArcOfCircle(Part.Circle(Vector(0, 0, 0), Vector(0, 0, 1), 11), math.radians(25), math.radians(52)), False)
sketch2.addGeometry(Part.ArcOfCircle(Part.Circle(Vector(0, 0, 0), Vector(0, 0, 1), 11), math.radians(52), math.radians(80)), False)
sketch2.addGeometry(Part.LineSegment(Vector(2, 10.8, 0), Vector(1.5, 10.2, 0)), False)
sketch2.addGeometry(Part.LineSegment(Vector(1.5, 10.2, 0), Vector(5.5, 7.1, 0)), False)
sketch2.addGeometry(Part.LineSegment(Vector(-9.4, -4.1, 0), Vector(-9.9, -4.7, 0)), False)
sketch2.addGeometry(Part.ArcOfCircle(Part.Circle(Vector(0, 0, 0), Vector(0, 0, 1), 11), math.radians(-155), math.radians(-127)), False)
sketch2.addGeometry(Part.ArcOfCircle(Part.Circle(Vector(0, 0, 0), Vector(0, 0, 1), 11), math.radians(-127), math.radians(-100)), False)
sketch2.addGeometry(Part.LineSegment(Vector(-2, -10.8, 0), Vector(-1.5, -10.2, 0)), False)
sketch2.addGeometry(Part.LineSegment(Vector(-1.5, -10.2, 0), Vector(-5.5, -7.1, 0)), False)
sketch2.addGeometry(Part.LineSegment(Vector(-5.5, -7.1, 0), Vector(-9.4, -4.1, 0)), False)
sketch2.addConstraint(Sketcher.Constraint("Coincident", 0, 2, 1, 1))
sketch2.addConstraint(Sketcher.Constraint("Coincident", 1, 2, 2, 1))
sketch2.addConstraint(Sketcher.Constraint("Tangent", 2, 2, 3, 1))
sketch2.addConstraint(Sketcher.Constraint("Coincident", 3, 2, 4, 1))
sketch2.addConstraint(Sketcher.Constraint("Coincident", 4, 2, 5, 1))
sketch2.addConstraint(Sketcher.Constraint("Coincident", 5, 2, 0, 1))
sketch2.addConstraint(Sketcher.Constraint("Coincident", 6, 2, 7, 1))
sketch2.addConstraint(Sketcher.Constraint("Tangent", 7, 2, 8, 1))
sketch2.addConstraint(Sketcher.Constraint("Coincident", 8, 2, 9, 1))
sketch2.addConstraint(Sketcher.Constraint("Coincident", 9, 2, 10, 1))
sketch2.addConstraint(Sketcher.Constraint("Coincident", 10, 2, 11, 1))
sketch2.addConstraint(Sketcher.Constraint("Coincident", 11, 2, 6, 1))
sketch2.addConstraint(Sketcher.Constraint("Coincident", 2, 3, -1, 1))
sketch2.addConstraint(Sketcher.Constraint("Coincident", 7, 3, -1, 1))
sketch2.addConstraint(Sketcher.Constraint("Equal", 2, 3))
sketch2.addConstraint(Sketcher.Constraint("Equal", 3, 7))
sketch2.addConstraint(Sketcher.Constraint("Equal", 7, 8))
sketch2.addConstraint(Sketcher.Constraint("Symmetric", 4, 2, 9, 2, -1, 1))
sketch2.addConstraint(Sketcher.Constraint("Symmetric", 5, 2, 10, 2, -1, 1))
sketch2.addConstraint(Sketcher.Constraint("Symmetric", 0, 2, 11, 2, -1, 1))
sketch2.addConstraint(Sketcher.Constraint("Perpendicular", 0, 1))
sketch2.addConstraint(Sketcher.Constraint("Parallel", 1, 4))
sketch2.addConstraint(Sketcher.Constraint("Perpendicular", 4, 5))
sketch2.addConstraint(Sketcher.Constraint("Perpendicular", 5, 6))
sketch2.addConstraint(Sketcher.Constraint("Parallel", 6, 9))
sketch2.addConstraint(Sketcher.Constraint("Equal", 1, 4))
sketch2.addConstraint(Sketcher.Constraint("Equal", 0, 5))
sketch2.addConstraint(Sketcher.Constraint("Radius", 2, 11.0))
sketch2.addConstraint(Sketcher.Constraint("Distance", 0, 5.0))
sketch2.addConstraint(Sketcher.Constraint("Angle", 0, Q("-37.5 deg")))
sketch2.addConstraint(Sketcher.Constraint("DistanceX", 3, 2, 5, 2, 3.481))
sketch2.addConstraint(Sketcher.Constraint("DistanceY", 2, 2, 4, 2, 1.4571))
sketch2.addConstraint(Sketcher.Constraint("DistanceY", 9, 2, 7, 2, 1.4571))
pad2 = body.newObject("PartDesign::Pad", "Pad001")
pad2.Profile = sketch2
pad2.Length = 28

sketch3 = body.newObject("Sketcher::SketchObject", "Sketch002")
sketch3.Placement = App.Placement(Vector(3.966767, -3.043807, 0), App.Rotation(Vector(0.608761429, 0.79335334, 0), Vector(0, 0, 1), Vector(0.79335334, -0.608761429, 0), "ZXY"))
sketch3.addGeometry(Part.LineSegment(Vector(-4.5, 27.5, 0), Vector(-9, 30, 0)), False)
sketch3.addGeometry(Part.LineSegment(Vector(-9, 30, 0), Vector(-9, 2, 0)), False)
sketch3.addGeometry(Part.LineSegment(Vector(-9, 2, 0), Vector(-7.5, 11.7, 0)), False)
sketch3.addGeometry(Part.LineSegment(Vector(-7.5, 11.7, 0), Vector(-7.5, 27.5, 0)), False)
sketch3.addGeometry(Part.LineSegment(Vector(-7.5, 27.5, 0), Vector(-4.5, 27.5, 0)), False)
sketch3.addGeometry(Part.LineSegment(Vector(4.5, 27.5, 0), Vector(7.5, 27.5, 0)), False)
sketch3.addGeometry(Part.LineSegment(Vector(7.5, 27.5, 0), Vector(7.5, 11.7, 0)), False)
sketch3.addGeometry(Part.LineSegment(Vector(7.5, 11.7, 0), Vector(9, 2, 0)), False)
sketch3.addGeometry(Part.LineSegment(Vector(9, 2, 0), Vector(9, 30, 0)), False)
sketch3.addGeometry(Part.LineSegment(Vector(9, 30, 0), Vector(4.5, 27.5, 0)), False)
sketch3.addConstraint(Sketcher.Constraint("Coincident", 0, 2, 1, 1))
sketch3.addConstraint(Sketcher.Constraint("Coincident", 1, 2, 2, 1))
sketch3.addConstraint(Sketcher.Constraint("Coincident", 2, 2, 3, 1))
sketch3.addConstraint(Sketcher.Constraint("Coincident", 3, 2, 4, 1))
sketch3.addConstraint(Sketcher.Constraint("Coincident", 4, 2, 0, 1))
sketch3.addConstraint(Sketcher.Constraint("Coincident", 5, 2, 6, 1))
sketch3.addConstraint(Sketcher.Constraint("Coincident", 6, 2, 7, 1))
sketch3.addConstraint(Sketcher.Constraint("Coincident", 7, 2, 8, 1))
sketch3.addConstraint(Sketcher.Constraint("Coincident", 8, 2, 9, 1))
sketch3.addConstraint(Sketcher.Constraint("Coincident", 9, 2, 5, 1))
sketch3.addConstraint(Sketcher.Constraint("Vertical", 1))
sketch3.addConstraint(Sketcher.Constraint("Vertical", 3))
sketch3.addConstraint(Sketcher.Constraint("Horizontal", 4))
sketch3.addConstraint(Sketcher.Constraint("Horizontal", 5))
sketch3.addConstraint(Sketcher.Constraint("Vertical", 6))
sketch3.addConstraint(Sketcher.Constraint("Vertical", 8))
sketch3.addConstraint(Sketcher.Constraint("Symmetric", 3, 2, 5, 2, -2))
sketch3.addConstraint(Sketcher.Constraint("Symmetric", 1, 2, 7, 2, -2))
sketch3.addConstraint(Sketcher.Constraint("Horizontal", 2, 2, 6, 2))
sketch3.addConstraint(Sketcher.Constraint("Horizontal", 0, 2, 8, 2))
sketch3.addConstraint(Sketcher.Constraint("Equal", 4, 5))
sketch3.addConstraint(Sketcher.Constraint("DistanceX", 4, 1, 4, 2, 3.0))
sketch3.addConstraint(Sketcher.Constraint("DistanceY", 1, 2, 1, 1, 28.0))
sketch3.addConstraint(Sketcher.Constraint("DistanceX", 0, 2, -1, 1, 9.0))
sketch3.addConstraint(Sketcher.Constraint("DistanceY", -1, 1, 0, 2, 30.0))
sketch3.addConstraint(Sketcher.Constraint("DistanceX", 4, 2, 5, 2, 12.0))
sketch3.addConstraint(Sketcher.Constraint("DistanceY", -1, 1, 3, 2, 27.5))
sketch3.addConstraint(Sketcher.Constraint("Distance", 2, 9.80286))
pad3 = body.newObject("PartDesign::Pad", "Pad002")
pad3.Profile = sketch3
pad3.Length = 10
pad3.Reversed = True

sketch4 = body.newObject("Sketcher::SketchObject", "Sketch003")
sketch4.Placement = App.Placement(Vector(3.966767, -3.043807, 0), App.Rotation(Vector(0.608761429, 0.79335334, 0), Vector(0, 0, 1), Vector(0.79335334, -0.608761429, 0), "ZXY"))
sketch4.addGeometry(Part.LineSegment(Vector(-9, 2, 0), Vector(-4.5, 27.5, 0)), False)
sketch4.addGeometry(Part.LineSegment(Vector(-4.5, 27.5, 0), Vector(-7.5, 27.5, 0)), False)
sketch4.addGeometry(Part.LineSegment(Vector(-7.5, 27.5, 0), Vector(-7.5, 22.8, 0)), False)
sketch4.addGeometry(Part.LineSegment(Vector(-7.5, 22.8, 0), Vector(-9, 2, 0)), False)
sketch4.addGeometry(Part.LineSegment(Vector(7.5, 22.8, 0), Vector(7.5, 27.5, 0)), False)
sketch4.addGeometry(Part.LineSegment(Vector(7.5, 27.5, 0), Vector(4.5, 27.5, 0)), False)
sketch4.addGeometry(Part.LineSegment(Vector(4.5, 27.5, 0), Vector(9, 2, 0)), False)
sketch4.addGeometry(Part.LineSegment(Vector(9, 2, 0), Vector(7.5, 22.8, 0)), False)
sketch4.addConstraint(Sketcher.Constraint("Coincident", 0, 2, 1, 1))
sketch4.addConstraint(Sketcher.Constraint("Coincident", 1, 2, 2, 1))
sketch4.addConstraint(Sketcher.Constraint("Coincident", 2, 2, 3, 1))
sketch4.addConstraint(Sketcher.Constraint("Coincident", 3, 2, 0, 1))
sketch4.addConstraint(Sketcher.Constraint("Coincident", 4, 2, 5, 1))
sketch4.addConstraint(Sketcher.Constraint("Coincident", 5, 2, 6, 1))
sketch4.addConstraint(Sketcher.Constraint("Coincident", 6, 2, 7, 1))
sketch4.addConstraint(Sketcher.Constraint("Coincident", 7, 2, 4, 1))
sketch4.addConstraint(Sketcher.Constraint("Horizontal", 1))
sketch4.addConstraint(Sketcher.Constraint("Vertical", 2))
sketch4.addConstraint(Sketcher.Constraint("Vertical", 4))
sketch4.addConstraint(Sketcher.Constraint("Horizontal", 5))
sketch4.addConstraint(Sketcher.Constraint("Symmetric", 1, 2, 4, 2, -2))
sketch4.addConstraint(Sketcher.Constraint("Symmetric", 3, 2, 6, 2, -2))
sketch4.addConstraint(Sketcher.Constraint("Horizontal", 2, 2, 7, 2))
sketch4.addConstraint(Sketcher.Constraint("Equal", 1, 5))
sketch4.addConstraint(Sketcher.Constraint("DistanceX", 1, 2, 1, 1, 3.0))
sketch4.addConstraint(Sketcher.Constraint("DistanceX", 3, 2, -1, 1, 9.0))
sketch4.addConstraint(Sketcher.Constraint("DistanceY", -1, 1, 3, 2, 2.0))
sketch4.addConstraint(Sketcher.Constraint("DistanceX", 0, 2, 4, 2, 12.0))
sketch4.addConstraint(Sketcher.Constraint("DistanceY", -1, 1, 0, 2, 27.5))
sketch4.addConstraint(Sketcher.Constraint("Distance", 3, 20.85876))
pad4 = body.newObject("PartDesign::Pad", "Pad003")
pad4.Profile = sketch4
pad4.Length = 0.9
pad4.Reversed = True

sketch5 = body.newObject("Sketcher::SketchObject", "Sketch004")
sketch5.Placement = App.Placement(Vector(-3.966767, 3.043807, 0), App.Rotation(Vector(-0.608761429, -0.79335334, 0), Vector(0, 0, 1), Vector(-0.79335334, 0.608761429, 0), "ZXY"))
sketch5.addGeometry(Part.LineSegment(Vector(-9, 2, 0), Vector(-4.5, 27.5, 0)), False)
sketch5.addGeometry(Part.LineSegment(Vector(-4.5, 27.5, 0), Vector(-7.5, 27.5, 0)), False)
sketch5.addGeometry(Part.LineSegment(Vector(-7.5, 27.5, 0), Vector(-7.5, 11.7, 0)), False)
sketch5.addGeometry(Part.LineSegment(Vector(-7.5, 11.7, 0), Vector(-9, 2, 0)), False)
sketch5.addGeometry(Part.LineSegment(Vector(7.5, 27.5, 0), Vector(4.5, 27.5, 0)), False)
sketch5.addGeometry(Part.LineSegment(Vector(4.5, 27.5, 0), Vector(9, 2, 0)), False)
sketch5.addGeometry(Part.LineSegment(Vector(9, 2, 0), Vector(7.5, 11.7, 0)), False)
sketch5.addGeometry(Part.LineSegment(Vector(7.5, 11.7, 0), Vector(7.5, 27.5, 0)), False)
sketch5.addConstraint(Sketcher.Constraint("Coincident", 0, 2, 1, 1))
sketch5.addConstraint(Sketcher.Constraint("Coincident", 1, 2, 2, 1))
sketch5.addConstraint(Sketcher.Constraint("Coincident", 2, 2, 3, 1))
sketch5.addConstraint(Sketcher.Constraint("Coincident", 3, 2, 0, 1))
sketch5.addConstraint(Sketcher.Constraint("Coincident", 4, 2, 5, 1))
sketch5.addConstraint(Sketcher.Constraint("Coincident", 5, 2, 6, 1))
sketch5.addConstraint(Sketcher.Constraint("Coincident", 6, 2, 7, 1))
sketch5.addConstraint(Sketcher.Constraint("Coincident", 7, 2, 4, 1))
sketch5.addConstraint(Sketcher.Constraint("Horizontal", 1))
sketch5.addConstraint(Sketcher.Constraint("Vertical", 2))
sketch5.addConstraint(Sketcher.Constraint("Horizontal", 4))
sketch5.addConstraint(Sketcher.Constraint("Vertical", 7))
sketch5.addConstraint(Sketcher.Constraint("Symmetric", 0, 2, 4, 2, -2))
sketch5.addConstraint(Sketcher.Constraint("Symmetric", 3, 2, 5, 2, -2))
sketch5.addConstraint(Sketcher.Constraint("Symmetric", 2, 2, 6, 2, -2))
sketch5.addConstraint(Sketcher.Constraint("DistanceX", 1, 2, 1, 1, 3.0))
sketch5.addConstraint(Sketcher.Constraint("DistanceX", 3, 2, -1, 1, 9.0))
sketch5.addConstraint(Sketcher.Constraint("DistanceY", -1, 1, 3, 2, 2.0))
sketch5.addConstraint(Sketcher.Constraint("DistanceX", 0, 2, 4, 2, 9.0))
sketch5.addConstraint(Sketcher.Constraint("DistanceY", -1, 1, 0, 2, 27.5))
sketch5.addConstraint(Sketcher.Constraint("Distance", 3, 9.80286))
pad5 = body.newObject("PartDesign::Pad", "Pad004")
pad5.Profile = sketch5
pad5.Length = 0.9
pad5.Reversed = True
doc.recompute()

fillet = body.newObject("PartDesign::Fillet", "Fillet")
fillet.Base = (pad5, edges_at(pad5, [(-15, 0, 0)]))
fillet.Radius = 1

doc.recompute()
